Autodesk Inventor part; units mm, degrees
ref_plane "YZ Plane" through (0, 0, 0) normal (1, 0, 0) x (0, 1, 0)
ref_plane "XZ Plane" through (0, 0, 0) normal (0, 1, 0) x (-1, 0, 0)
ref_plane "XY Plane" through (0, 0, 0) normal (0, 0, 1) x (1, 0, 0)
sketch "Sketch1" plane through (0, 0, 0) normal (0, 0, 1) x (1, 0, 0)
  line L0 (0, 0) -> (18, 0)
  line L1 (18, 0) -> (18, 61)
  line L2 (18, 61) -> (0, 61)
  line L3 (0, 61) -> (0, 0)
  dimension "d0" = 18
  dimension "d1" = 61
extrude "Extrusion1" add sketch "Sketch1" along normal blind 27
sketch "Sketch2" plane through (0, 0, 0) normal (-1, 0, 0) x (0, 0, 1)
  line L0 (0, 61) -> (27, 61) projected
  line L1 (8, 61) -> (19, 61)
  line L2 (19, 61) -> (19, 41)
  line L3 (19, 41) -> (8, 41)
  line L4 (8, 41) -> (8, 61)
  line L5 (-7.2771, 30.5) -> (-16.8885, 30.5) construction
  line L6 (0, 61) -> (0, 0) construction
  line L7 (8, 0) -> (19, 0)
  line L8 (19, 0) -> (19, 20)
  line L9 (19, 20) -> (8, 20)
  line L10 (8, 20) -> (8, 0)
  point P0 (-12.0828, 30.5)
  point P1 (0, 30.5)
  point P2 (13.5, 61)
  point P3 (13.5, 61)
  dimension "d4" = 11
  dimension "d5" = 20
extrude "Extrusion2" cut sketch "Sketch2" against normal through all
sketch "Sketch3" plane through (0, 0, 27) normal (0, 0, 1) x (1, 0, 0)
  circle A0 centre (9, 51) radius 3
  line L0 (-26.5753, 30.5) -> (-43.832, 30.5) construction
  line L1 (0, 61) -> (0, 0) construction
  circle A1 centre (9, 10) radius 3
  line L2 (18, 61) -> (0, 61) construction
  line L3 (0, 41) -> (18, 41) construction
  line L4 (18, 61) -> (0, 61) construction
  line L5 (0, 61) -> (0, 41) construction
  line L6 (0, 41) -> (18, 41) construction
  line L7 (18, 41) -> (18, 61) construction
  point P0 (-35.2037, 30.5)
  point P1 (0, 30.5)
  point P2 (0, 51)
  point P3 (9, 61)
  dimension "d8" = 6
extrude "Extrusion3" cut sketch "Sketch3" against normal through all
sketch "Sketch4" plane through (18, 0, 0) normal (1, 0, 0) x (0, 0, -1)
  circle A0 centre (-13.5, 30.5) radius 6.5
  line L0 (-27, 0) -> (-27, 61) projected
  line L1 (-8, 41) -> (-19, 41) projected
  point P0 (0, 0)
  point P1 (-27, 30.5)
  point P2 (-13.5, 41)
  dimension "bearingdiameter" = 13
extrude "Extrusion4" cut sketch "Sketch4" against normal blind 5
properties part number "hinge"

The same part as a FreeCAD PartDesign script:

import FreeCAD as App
import Part
import Sketcher

V = App.Vector

doc = App.newDocument("Part")
body = doc.addObject("PartDesign::Body", "Body")

sketch1 = body.newObject("Sketcher::SketchObject", "Sketch")
sketch1.AttachmentSupport = (doc.getObject("XY_Plane"), [""])
sketch1.MapMode = "FlatFace"
sketch1.addGeometry(Part.LineSegment(V(0, 61, 0), V(0, 0, 0)), False)
sketch1.addGeometry(Part.LineSegment(V(0, 0, 0), V(18, 0, 0)), False)
sketch1.addGeometry(Part.LineSegment(V(18, 0, 0), V(18, 61, 0)), False)
sketch1.addGeometry(Part.LineSegment(V(18, 61, 0), V(0, 61, 0)), False)
sketch1.addConstraint(Sketcher.Constraint("Coincident", 0, 2, 1, 1))
sketch1.addConstraint(Sketcher.Constraint("Coincident", 1, 2, 2, 1))
sketch1.addConstraint(Sketcher.Constraint("Coincident", 2, 2, 3, 1))
sketch1.addConstraint(Sketcher.Constraint("Coincident", 3, 2, 0, 1))
sketch1.addConstraint(Sketcher.Constraint("Vertical", 0))
sketch1.addConstraint(Sketcher.Constraint("Horizontal", 1))
sketch1.addConstraint(Sketcher.Constraint("Vertical", 2))
sketch1.addConstraint(Sketcher.Constraint("Horizontal", 3))
sketch1.addConstraint(Sketcher.Constraint("Coincident", 0, 2, -1, 1))
sketch1.addConstraint(Sketcher.Constraint("DistanceX", 1, 1, 1, 2, 18.0))
sketch1.addConstraint(Sketcher.Constraint("DistanceY", 0, 2, 0, 1, 61.0))
pad1 = body.newObject("PartDesign::Pad", "Pad")
pad1.Profile = sketch1
pad1.Length = 27

sketch2 = body.newObject("Sketcher::SketchObject", "Sketch001")
sketch2.AttachmentSupport = (doc.getObject("YZ_Plane"), [""])
sketch2.MapMode = "FlatFace"
sketch2.addGeometry(Part.LineSegment(V(61, 19, 0), V(61, 8, 0)), False)
sketch2.addGeometry(Part.LineSegment(V(61, 8, 0), V(41, 8, 0)), False)
sketch2.addGeometry(Part.LineSegment(V(41, 8, 0), V(41, 19, 0)), False)
sketch2.addGeometry(Part.LineSegment(V(41, 19, 0), V(61, 19, 0)), False)
sketch2.addGeometry(Part.LineSegment(V(20, 8, 0), V(0, 8, 0)), False)
sketch2.addGeometry(Part.LineSegment(V(0, 8, 0), V(0, 19, 0)), False)
sketch2.addGeometry(Part.LineSegment(V(0, 19, 0), V(20, 19, 0)), False)
sketch2.addGeometry(Part.LineSegment(V(20, 19, 0), V(20, 8, 0)), False)
sketch2.addConstraint(Sketcher.Constraint("Coincident", 0, 2, 1, 1))
sketch2.addConstraint(Sketcher.Constraint("Coincident", 1, 2, 2, 1))
sketch2.addConstraint(Sketcher.Constraint("Coincident", 2, 2, 3, 1))
sketch2.addConstraint(Sketcher.Constraint("Coincident", 3, 2, 0, 1))
sketch2.addConstraint(Sketcher.Constraint("Coincident", 4, 2, 5, 1))
sketch2.addConstraint(Sketcher.Constraint("Coincident", 5, 2, 6, 1))
sketch2.addConstraint(Sketcher.Constraint("Coincident", 6, 2, 7, 1))
sketch2.addConstraint(Sketcher.Constraint("Coincident", 7, 2, 4, 1))
sketch2.addConstraint(Sketcher.Constraint("Vertical", 0))
sketch2.addConstraint(Sketcher.Constraint("Horizontal", 1))
sketch2.addConstraint(Sketcher.Constraint("Vertical", 2))
sketch2.addConstraint(Sketcher.Constraint("Horizontal", 3))
sketch2.addConstraint(Sketcher.Constraint("Horizontal", 4))
sketch2.addConstraint(Sketcher.Constraint("Vertical", 5))
sketch2.addConstraint(Sketcher.Constraint("Horizontal", 6))
sketch2.addConstraint(Sketcher.Constraint("Vertical", 7))
sketch2.addConstraint(Sketcher.Constraint("PointOnObject", 4, 2, -2))
sketch2.addConstraint(Sketcher.Constraint("Horizontal", 1, 2, 4, 2))
sketch2.addConstraint(Sketcher.Constraint("Horizontal", 3, 2, 5, 2))
sketch2.addConstraint(Sketcher.Constraint("Equal", 3, 4))
sketch2.addConstraint(Sketcher.Constraint("DistanceX", 1, 2, 1, 1, 20.0))
sketch2.addConstraint(Sketcher.Constraint("DistanceY", 0, 2, 0, 1, 11.0))
sketch2.addConstraint(Sketcher.Constraint("DistanceX", -1, 1, 0, 2, 61.0))
sketch2.addConstraint(Sketcher.Constraint("DistanceY", -1, 1, 0, 2, 8.0))
pocket1 = body.newObject("PartDesign::Pocket", "Pocket")
pocket1.Profile = sketch2
pocket1.Type = "ThroughAll"
pocket1.Reversed = True

sketch3 = body.newObject("Sketcher::SketchObject", "Sketch002")
sketch3.AttachmentSupport = (doc.getObject("XY_Plane"), [""])
sketch3.MapMode = "FlatFace"
sketch3.AttachmentOffset = App.Placement(V(0, 0, 27), App.Rotation())
sketch3.addGeometry(Part.Circle(V(9, 51, 0), V(0, 0, 1), 3), False)
sketch3.addGeometry(Part.Circle(V(9, 10, 0), V(0, 0, 1), 3), False)
sketch3.addConstraint(Sketcher.Constraint("Equal", 0, 1))
sketch3.addConstraint(Sketcher.Constraint("Vertical", 0, 3, 1, 3))
sketch3.addConstraint(Sketcher.Constraint("Diameter", 0, 6.0))
sketch3.addConstraint(Sketcher.Constraint("DistanceX", -1, 1, 0, 3, 9.0))
sketch3.addConstraint(Sketcher.Constraint("DistanceY", -1, 1, 0, 3, 51.0))
sketch3.addConstraint(Sketcher.Constraint("DistanceY", -1, 1, 1, 3, 10.0))
pocket2 = body.newObject("PartDesign::Pocket", "Pocket001")
pocket2.Profile = sketch3
pocket2.Type = "ThroughAll"

sketch4 = body.newObject("Sketcher::SketchObject", "Sketch003")
sketch4.AttachmentSupport = (doc.getObject("YZ_Plane"), [""])
sketch4.MapMode = "FlatFace"
sketch4.AttachmentOffset = App.Placement(V(0, 0, 18), App.Rotation())
sketch4.addGeometry(Part.Circle(V(30.5, 13.5, 0), V(0, 0, 1), 6.5), False)
sketch4.addConstraint(Sketcher.Constraint("Diameter", 0, 13.0))
sketch4.addConstraint(Sketcher.Constraint("DistanceX", -1, 1, 0, 3, 30.5))
sketch4.addConstraint(Sketcher.Constraint("DistanceY", -1, 1, 0, 3, 13.5))
pocket3 = body.newObject("PartDesign::Pocket", "Pocket002")
pocket3.Profile = sketch4
pocket3.Length = 5

doc.recompute()
